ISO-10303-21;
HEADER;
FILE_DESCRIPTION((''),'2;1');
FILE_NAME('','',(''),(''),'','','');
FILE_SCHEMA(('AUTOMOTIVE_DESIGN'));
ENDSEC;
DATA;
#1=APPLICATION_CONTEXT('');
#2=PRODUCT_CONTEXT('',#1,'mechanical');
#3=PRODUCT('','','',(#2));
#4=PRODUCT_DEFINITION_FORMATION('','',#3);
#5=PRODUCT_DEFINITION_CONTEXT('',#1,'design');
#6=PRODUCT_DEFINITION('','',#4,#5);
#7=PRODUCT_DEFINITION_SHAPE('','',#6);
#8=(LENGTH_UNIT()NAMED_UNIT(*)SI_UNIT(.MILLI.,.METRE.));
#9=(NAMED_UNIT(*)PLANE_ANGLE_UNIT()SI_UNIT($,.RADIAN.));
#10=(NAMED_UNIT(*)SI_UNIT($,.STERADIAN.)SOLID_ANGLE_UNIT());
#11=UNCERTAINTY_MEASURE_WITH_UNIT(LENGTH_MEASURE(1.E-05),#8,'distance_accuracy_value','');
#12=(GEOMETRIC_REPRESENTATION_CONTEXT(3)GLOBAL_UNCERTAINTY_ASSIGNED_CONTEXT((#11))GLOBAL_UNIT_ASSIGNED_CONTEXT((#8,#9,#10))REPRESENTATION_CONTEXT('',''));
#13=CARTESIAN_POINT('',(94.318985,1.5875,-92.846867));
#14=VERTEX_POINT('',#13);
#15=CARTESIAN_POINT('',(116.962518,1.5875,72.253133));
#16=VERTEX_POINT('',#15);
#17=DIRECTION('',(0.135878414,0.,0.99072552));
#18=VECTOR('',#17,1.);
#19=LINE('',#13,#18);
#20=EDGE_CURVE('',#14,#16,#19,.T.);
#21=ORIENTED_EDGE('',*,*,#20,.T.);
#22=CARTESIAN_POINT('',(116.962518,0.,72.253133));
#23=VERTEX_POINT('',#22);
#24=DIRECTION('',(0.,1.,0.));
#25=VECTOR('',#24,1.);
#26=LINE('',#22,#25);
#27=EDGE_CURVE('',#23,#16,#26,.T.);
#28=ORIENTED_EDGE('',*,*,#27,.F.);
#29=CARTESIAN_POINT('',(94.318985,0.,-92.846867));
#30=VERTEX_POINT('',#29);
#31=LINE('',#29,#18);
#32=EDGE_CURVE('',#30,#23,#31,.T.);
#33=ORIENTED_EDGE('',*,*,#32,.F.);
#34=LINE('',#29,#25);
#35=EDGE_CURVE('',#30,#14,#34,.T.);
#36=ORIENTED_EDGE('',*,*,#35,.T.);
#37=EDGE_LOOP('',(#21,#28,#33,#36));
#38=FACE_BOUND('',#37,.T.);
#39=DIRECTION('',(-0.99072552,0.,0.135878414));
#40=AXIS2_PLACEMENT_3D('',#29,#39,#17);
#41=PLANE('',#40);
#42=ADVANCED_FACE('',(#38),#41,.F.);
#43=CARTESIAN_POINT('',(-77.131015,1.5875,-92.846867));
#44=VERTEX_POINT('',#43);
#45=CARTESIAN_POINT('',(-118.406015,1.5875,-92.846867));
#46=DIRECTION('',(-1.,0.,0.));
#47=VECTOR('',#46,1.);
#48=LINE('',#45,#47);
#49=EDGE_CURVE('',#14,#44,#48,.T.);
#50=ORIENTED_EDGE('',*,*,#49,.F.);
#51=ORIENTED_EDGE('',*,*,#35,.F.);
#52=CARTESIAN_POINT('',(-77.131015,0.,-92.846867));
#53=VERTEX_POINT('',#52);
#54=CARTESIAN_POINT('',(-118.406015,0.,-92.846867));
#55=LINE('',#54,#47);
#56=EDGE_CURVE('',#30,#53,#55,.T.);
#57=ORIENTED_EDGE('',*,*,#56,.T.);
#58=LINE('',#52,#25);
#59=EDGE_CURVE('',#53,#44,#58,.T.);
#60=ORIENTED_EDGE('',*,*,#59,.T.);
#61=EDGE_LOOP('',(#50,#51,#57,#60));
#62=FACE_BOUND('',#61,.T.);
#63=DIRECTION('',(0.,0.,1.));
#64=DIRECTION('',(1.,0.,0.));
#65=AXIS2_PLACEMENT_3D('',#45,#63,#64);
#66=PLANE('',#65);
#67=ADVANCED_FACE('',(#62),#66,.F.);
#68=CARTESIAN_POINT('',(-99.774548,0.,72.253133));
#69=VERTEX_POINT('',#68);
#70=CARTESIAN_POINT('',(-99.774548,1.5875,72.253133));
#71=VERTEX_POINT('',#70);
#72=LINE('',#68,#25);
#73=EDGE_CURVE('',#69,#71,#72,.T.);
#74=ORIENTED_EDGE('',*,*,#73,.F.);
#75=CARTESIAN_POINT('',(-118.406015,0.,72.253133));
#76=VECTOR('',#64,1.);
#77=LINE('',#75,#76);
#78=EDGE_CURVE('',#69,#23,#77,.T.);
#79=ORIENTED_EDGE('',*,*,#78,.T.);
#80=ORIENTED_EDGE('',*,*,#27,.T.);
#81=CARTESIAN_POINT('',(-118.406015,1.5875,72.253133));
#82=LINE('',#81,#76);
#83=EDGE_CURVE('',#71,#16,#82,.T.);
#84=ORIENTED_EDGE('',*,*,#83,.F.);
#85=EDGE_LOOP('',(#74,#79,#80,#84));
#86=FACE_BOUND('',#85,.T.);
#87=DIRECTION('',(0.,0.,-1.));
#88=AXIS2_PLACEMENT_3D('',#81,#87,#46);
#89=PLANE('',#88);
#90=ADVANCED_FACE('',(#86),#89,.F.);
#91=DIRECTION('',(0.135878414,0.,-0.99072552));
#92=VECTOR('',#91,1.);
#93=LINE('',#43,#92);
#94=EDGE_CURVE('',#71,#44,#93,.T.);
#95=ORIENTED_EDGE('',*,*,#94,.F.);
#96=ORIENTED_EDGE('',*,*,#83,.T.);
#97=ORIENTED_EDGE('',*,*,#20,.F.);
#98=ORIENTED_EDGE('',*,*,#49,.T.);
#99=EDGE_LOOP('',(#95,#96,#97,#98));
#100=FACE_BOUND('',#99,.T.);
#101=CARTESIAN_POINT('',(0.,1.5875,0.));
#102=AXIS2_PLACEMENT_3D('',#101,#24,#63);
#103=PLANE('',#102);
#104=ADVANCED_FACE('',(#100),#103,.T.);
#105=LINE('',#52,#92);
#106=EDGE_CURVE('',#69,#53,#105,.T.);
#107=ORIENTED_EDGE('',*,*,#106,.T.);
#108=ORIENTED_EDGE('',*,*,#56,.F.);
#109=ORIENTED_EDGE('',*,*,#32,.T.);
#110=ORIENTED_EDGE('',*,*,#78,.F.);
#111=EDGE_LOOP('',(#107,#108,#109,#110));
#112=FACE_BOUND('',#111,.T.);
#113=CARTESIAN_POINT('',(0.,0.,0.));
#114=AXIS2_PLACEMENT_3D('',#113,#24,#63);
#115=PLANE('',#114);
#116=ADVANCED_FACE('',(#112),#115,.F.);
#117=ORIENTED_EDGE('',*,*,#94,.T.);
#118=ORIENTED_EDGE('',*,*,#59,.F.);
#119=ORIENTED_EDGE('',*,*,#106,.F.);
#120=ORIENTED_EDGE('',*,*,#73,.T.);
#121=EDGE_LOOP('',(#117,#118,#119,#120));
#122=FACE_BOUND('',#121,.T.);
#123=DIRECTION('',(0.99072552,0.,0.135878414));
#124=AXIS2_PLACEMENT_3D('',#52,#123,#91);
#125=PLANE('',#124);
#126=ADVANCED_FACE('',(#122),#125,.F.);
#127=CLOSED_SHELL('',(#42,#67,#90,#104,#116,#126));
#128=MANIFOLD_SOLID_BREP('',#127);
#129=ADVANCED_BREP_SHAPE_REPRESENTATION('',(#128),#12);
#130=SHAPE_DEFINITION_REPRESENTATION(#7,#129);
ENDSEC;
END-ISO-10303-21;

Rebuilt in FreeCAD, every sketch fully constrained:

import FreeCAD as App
import Part
import Sketcher
from FreeCAD import Vector
Q = App.Units.Quantity


def add_polygon(sketch, points):
    """Adds a closed chain of lines whose ends are joined by coincident constraints."""
    first, n = sketch.GeometryCount, len(points)
    for a, b in zip(points, points[1:] + points[:1]):
        sketch.addGeometry(Part.LineSegment(App.Vector(*a, 0), App.Vector(*b, 0)), False)
    for i in range(n):
        sketch.addConstraint(Sketcher.Constraint("Coincident", first + i, 2, first + (i + 1) % n, 1))

doc = App.newDocument("Part")
body = doc.addObject("PartDesign::Body", "Body")

sketch1 = body.newObject("Sketcher::SketchObject", "Sketch")
sketch1.AttachmentSupport = (doc.getObject("XZ_Plane"), [""])
sketch1.MapMode = "FlatFace"
add_polygon(sketch1, [(-118, -93), (-118, 72), (136, 72), (136, -93)])
sketch1.addConstraint([
    Sketcher.Constraint("Vertical", 0),
    Sketcher.Constraint("Horizontal", 1),
    Sketcher.Constraint("Vertical", 2),
    Sketcher.Constraint("Horizontal", 3),
    Sketcher.Constraint("DistanceX", 1, 1, 1, 2, Q("10 in")),
    Sketcher.Constraint("DistanceY", 0, 1, 0, 2, Q("6.5 in")),
    Sketcher.Constraint("DistanceX", 0, 2, -1, 1, Q("118.406015 mm")),
    Sketcher.Constraint("DistanceY", -1, 1, 0, 2, Q("72.253133 mm")),
])
pad1 = body.newObject("PartDesign::Pad", "Pad")
pad1.Profile = sketch1
pad1.Length = Q("0.0625 in")
pad1.Reversed = True

sketch2 = body.newObject("Sketcher::SketchObject", "Sketch001")
sketch2.AttachmentSupport = (doc.getObject("XZ_Plane"), [""])
sketch2.MapMode = "FlatFace"
sketch2.AttachmentOffset = App.Placement(Vector(0, 0, -0.0625 * 25.4), App.Rotation())
add_polygon(sketch2, [(-77, -93), (-118, -93), (-118, 72), (-100, 72)])
add_polygon(sketch2, [(136, -93), (94, -93), (117, 72), (136, 72)])
sketch2.addConstraint([
    Sketcher.Constraint("Horizontal", 0),
    Sketcher.Constraint("Vertical", 1),
    Sketcher.Constraint("Horizontal", 2),
    Sketcher.Constraint("Horizontal", 4),
    Sketcher.Constraint("Horizontal", 6),
    Sketcher.Constraint("Vertical", 7),
    Sketcher.Constraint("Horizontal", 3, 2, 4, 2),
    Sketcher.Constraint("Horizontal", 2, 2, 5, 2),
    Sketcher.Constraint("Equal", 0, 4),
    Sketcher.Constraint("Equal", 2, 6),
    Sketcher.Constraint("DistanceY", 1, 1, 1, 2, Q("6.5 in")),
    Sketcher.Constraint("DistanceX", 1, 2, 6, 2, Q("10 in")),
    Sketcher.Constraint("DistanceX", 0, 2, 0, 1, Q("1.625 in")),
    Sketcher.Constraint("Distance", 3, Q("166.645551 mm")),
    Sketcher.Constraint("DistanceX", 2, 2, -1, 1, Q("99.774548 mm")),
    Sketcher.Constraint("DistanceY", 0, 2, -1, 1, Q("92.846867 mm")),
])
pocket1 = body.newObject("PartDesign::Pocket", "Pocket")
pocket1.Profile = sketch2
pocket1.Length = Q("0.0625 in")
pocket1.Reversed = True

doc.recompute()
